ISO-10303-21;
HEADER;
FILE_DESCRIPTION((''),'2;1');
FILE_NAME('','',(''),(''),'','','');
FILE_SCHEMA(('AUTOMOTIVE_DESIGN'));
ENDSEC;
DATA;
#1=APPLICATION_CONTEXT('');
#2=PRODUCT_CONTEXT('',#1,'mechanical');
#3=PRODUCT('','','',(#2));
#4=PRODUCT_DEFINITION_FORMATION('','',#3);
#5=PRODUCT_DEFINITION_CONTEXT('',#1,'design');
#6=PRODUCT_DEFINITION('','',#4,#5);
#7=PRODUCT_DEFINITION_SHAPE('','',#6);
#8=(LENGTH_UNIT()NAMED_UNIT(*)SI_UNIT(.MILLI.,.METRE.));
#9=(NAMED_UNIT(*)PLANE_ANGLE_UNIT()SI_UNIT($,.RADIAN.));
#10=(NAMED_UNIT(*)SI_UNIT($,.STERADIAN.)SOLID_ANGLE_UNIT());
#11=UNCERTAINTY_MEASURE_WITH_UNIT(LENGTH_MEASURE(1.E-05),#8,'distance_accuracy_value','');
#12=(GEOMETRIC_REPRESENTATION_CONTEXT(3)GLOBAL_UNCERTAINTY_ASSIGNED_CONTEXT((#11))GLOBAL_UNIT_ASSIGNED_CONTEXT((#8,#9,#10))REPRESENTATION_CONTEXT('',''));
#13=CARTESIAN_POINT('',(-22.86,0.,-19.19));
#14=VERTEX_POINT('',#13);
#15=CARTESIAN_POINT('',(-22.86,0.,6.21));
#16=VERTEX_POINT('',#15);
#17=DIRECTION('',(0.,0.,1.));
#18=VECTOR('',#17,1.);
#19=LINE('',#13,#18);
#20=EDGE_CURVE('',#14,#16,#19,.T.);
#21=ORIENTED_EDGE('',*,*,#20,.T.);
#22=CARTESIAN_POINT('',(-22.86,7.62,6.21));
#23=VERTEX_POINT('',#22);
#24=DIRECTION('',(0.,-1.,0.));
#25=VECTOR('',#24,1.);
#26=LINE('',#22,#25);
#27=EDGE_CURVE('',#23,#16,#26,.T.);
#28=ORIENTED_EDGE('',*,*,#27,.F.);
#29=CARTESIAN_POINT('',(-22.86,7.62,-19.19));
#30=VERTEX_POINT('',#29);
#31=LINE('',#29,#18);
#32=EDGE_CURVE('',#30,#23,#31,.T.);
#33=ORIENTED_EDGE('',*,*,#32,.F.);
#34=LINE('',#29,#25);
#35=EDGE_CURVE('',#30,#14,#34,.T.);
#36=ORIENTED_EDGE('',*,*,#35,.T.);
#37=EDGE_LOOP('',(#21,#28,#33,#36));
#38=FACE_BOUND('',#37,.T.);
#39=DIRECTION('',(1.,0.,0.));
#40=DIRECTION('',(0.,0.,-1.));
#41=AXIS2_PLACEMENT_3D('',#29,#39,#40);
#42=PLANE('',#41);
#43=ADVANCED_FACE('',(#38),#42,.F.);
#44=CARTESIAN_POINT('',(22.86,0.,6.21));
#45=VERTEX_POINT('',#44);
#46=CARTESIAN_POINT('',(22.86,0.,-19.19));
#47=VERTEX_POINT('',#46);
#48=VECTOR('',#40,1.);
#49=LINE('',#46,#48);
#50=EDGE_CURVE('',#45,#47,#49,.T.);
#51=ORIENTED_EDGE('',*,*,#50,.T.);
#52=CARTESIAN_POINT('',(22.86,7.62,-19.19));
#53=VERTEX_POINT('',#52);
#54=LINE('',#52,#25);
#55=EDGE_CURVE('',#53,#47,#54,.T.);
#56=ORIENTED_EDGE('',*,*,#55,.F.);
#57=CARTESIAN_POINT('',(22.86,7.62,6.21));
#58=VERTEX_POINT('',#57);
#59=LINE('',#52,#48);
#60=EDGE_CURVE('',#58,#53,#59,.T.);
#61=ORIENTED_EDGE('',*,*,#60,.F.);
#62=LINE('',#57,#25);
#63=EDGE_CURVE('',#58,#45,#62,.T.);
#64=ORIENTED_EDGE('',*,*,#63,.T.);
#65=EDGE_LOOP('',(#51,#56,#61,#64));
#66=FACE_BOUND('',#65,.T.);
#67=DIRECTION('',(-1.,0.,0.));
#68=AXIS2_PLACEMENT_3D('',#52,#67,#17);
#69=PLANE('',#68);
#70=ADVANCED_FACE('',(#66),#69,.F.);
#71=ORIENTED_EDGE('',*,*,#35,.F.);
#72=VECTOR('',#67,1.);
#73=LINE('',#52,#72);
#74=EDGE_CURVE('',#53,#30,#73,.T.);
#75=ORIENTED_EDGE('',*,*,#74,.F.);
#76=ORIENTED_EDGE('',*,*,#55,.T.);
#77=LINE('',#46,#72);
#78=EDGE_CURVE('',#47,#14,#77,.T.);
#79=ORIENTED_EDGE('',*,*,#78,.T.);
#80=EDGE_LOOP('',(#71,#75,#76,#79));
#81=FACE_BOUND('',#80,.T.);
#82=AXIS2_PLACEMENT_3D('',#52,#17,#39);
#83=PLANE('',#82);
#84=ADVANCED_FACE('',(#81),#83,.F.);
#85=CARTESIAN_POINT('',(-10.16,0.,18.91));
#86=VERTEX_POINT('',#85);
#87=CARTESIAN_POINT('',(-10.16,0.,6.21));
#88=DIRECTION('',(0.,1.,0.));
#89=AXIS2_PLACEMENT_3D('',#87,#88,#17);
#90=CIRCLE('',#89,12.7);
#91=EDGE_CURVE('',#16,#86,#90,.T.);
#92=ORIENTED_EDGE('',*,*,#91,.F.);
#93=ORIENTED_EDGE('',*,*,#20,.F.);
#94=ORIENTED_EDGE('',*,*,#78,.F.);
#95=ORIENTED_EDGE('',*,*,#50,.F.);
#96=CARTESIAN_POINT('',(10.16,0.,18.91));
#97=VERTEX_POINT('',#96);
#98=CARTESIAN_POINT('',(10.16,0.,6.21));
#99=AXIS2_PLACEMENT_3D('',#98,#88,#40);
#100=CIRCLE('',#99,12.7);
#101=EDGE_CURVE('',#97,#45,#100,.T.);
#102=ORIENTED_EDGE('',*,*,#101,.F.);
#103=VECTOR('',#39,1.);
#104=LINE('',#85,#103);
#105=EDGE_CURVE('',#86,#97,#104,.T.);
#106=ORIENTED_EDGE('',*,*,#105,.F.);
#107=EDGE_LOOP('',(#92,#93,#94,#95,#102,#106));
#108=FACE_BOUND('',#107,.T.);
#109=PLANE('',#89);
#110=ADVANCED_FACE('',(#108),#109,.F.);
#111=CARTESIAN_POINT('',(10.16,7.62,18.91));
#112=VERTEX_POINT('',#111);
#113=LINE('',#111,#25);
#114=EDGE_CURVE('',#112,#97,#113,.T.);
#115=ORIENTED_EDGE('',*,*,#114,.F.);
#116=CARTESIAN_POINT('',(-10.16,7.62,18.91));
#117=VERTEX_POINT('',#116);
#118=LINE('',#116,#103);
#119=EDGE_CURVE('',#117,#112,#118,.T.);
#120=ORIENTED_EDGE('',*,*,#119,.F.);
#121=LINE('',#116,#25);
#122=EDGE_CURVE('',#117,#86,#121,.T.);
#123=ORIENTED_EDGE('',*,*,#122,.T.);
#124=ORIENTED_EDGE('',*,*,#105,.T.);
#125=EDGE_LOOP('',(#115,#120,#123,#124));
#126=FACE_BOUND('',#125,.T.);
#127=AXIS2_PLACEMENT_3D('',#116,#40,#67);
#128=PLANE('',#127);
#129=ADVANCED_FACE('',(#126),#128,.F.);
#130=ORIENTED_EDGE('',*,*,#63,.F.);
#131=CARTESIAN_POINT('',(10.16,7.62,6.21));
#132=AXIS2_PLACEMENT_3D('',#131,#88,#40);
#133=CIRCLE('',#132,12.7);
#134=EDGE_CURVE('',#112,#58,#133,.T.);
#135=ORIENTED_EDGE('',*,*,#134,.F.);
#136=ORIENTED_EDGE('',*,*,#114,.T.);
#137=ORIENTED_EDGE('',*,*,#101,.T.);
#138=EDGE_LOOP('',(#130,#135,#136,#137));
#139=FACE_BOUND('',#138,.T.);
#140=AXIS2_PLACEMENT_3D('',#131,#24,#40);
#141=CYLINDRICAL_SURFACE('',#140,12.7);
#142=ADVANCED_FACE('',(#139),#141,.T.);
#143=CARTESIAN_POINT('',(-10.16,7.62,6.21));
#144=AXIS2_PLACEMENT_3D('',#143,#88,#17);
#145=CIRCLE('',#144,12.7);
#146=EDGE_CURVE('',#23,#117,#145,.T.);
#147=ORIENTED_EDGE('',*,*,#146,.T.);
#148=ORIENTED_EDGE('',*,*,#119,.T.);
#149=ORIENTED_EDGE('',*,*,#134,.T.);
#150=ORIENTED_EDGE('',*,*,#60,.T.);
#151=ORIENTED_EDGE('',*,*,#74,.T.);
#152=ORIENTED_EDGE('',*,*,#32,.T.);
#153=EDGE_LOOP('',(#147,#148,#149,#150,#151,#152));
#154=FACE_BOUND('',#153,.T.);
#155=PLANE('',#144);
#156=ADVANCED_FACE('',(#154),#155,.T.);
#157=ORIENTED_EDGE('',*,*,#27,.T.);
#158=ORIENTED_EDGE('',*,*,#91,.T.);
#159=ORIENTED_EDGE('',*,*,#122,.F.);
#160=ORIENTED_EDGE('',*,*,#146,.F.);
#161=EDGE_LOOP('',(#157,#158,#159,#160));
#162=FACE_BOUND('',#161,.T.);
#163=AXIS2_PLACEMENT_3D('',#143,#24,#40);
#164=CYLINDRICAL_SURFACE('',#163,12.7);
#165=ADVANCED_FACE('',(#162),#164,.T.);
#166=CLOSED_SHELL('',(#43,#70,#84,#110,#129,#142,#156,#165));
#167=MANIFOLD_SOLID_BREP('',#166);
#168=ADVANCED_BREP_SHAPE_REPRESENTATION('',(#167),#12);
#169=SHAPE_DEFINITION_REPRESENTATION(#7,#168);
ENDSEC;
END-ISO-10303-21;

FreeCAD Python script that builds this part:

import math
import FreeCAD as App
import Part
import Sketcher
from FreeCAD import Vector
Q = App.Units.Quantity

doc = App.newDocument("Part")
body = doc.addObject("PartDesign::Body", "Body")

sketch1 = doc.addObject("Sketcher::SketchObject", "Sketch")
body.addObject(sketch1)
sketch1.AttachmentSupport = (doc.XZ_Plane, [""])
sketch1.MapMode = "FlatFace"
sketch1.addGeometry([
    Part.LineSegment(Vector(23, -19, 0), Vector(-23, -19, 0)),
    Part.LineSegment(Vector(-23, -19, 0), Vector(-23, 6, 0)),
    Part.ArcOfCircle(Part.Circle(Vector(-10, 6, 0), Vector(0, 0, 1), 13), math.radians(90), math.radians(180)),
    Part.LineSegment(Vector(-10, 19, 0), Vector(10, 19, 0)),
    Part.ArcOfCircle(Part.Circle(Vector(10, 6, 0), Vector(0, 0, 1), 13), math.radians(0), math.radians(90)),
    Part.LineSegment(Vector(23, 6, 0), Vector(23, -19, 0)),
], False)
sketch1.addConstraint([
    Sketcher.Constraint("Coincident", 0, 2, 1, 1),
    Sketcher.Constraint("Tangent", 1, 2, 2, 2),
    Sketcher.Constraint("Tangent", 2, 1, 3, 1),
    Sketcher.Constraint("Tangent", 3, 2, 4, 2),
    Sketcher.Constraint("Tangent", 4, 1, 5, 1),
    Sketcher.Constraint("Coincident", 5, 2, 0, 1),
    Sketcher.Constraint("Horizontal", 0),
    Sketcher.Constraint("Vertical", 1),
    Sketcher.Constraint("Horizontal", 3),
    Sketcher.Constraint("Vertical", 5),
    Sketcher.Constraint("Equal", 2, 4),
    Sketcher.Constraint("Radius", 2, Q("0.5 in")),
    Sketcher.Constraint("DistanceY", 1, 1, 1, 2, Q("1 in")),
    Sketcher.Constraint("DistanceX", 0, 2, 0, 1, Q("1.8 in")),
    Sketcher.Constraint("DistanceX", 2, 3, -1, 1, Q("0.4 in")),
    Sketcher.Constraint("DistanceY", -1, 1, 2, 3, 6.21),
])
pad1 = doc.addObject("PartDesign::Pad", "Pad")
body.addObject(pad1)
pad1.Profile = sketch1
pad1.Length = Q("0.3 in")
pad1.Reversed = True

doc.recompute()
